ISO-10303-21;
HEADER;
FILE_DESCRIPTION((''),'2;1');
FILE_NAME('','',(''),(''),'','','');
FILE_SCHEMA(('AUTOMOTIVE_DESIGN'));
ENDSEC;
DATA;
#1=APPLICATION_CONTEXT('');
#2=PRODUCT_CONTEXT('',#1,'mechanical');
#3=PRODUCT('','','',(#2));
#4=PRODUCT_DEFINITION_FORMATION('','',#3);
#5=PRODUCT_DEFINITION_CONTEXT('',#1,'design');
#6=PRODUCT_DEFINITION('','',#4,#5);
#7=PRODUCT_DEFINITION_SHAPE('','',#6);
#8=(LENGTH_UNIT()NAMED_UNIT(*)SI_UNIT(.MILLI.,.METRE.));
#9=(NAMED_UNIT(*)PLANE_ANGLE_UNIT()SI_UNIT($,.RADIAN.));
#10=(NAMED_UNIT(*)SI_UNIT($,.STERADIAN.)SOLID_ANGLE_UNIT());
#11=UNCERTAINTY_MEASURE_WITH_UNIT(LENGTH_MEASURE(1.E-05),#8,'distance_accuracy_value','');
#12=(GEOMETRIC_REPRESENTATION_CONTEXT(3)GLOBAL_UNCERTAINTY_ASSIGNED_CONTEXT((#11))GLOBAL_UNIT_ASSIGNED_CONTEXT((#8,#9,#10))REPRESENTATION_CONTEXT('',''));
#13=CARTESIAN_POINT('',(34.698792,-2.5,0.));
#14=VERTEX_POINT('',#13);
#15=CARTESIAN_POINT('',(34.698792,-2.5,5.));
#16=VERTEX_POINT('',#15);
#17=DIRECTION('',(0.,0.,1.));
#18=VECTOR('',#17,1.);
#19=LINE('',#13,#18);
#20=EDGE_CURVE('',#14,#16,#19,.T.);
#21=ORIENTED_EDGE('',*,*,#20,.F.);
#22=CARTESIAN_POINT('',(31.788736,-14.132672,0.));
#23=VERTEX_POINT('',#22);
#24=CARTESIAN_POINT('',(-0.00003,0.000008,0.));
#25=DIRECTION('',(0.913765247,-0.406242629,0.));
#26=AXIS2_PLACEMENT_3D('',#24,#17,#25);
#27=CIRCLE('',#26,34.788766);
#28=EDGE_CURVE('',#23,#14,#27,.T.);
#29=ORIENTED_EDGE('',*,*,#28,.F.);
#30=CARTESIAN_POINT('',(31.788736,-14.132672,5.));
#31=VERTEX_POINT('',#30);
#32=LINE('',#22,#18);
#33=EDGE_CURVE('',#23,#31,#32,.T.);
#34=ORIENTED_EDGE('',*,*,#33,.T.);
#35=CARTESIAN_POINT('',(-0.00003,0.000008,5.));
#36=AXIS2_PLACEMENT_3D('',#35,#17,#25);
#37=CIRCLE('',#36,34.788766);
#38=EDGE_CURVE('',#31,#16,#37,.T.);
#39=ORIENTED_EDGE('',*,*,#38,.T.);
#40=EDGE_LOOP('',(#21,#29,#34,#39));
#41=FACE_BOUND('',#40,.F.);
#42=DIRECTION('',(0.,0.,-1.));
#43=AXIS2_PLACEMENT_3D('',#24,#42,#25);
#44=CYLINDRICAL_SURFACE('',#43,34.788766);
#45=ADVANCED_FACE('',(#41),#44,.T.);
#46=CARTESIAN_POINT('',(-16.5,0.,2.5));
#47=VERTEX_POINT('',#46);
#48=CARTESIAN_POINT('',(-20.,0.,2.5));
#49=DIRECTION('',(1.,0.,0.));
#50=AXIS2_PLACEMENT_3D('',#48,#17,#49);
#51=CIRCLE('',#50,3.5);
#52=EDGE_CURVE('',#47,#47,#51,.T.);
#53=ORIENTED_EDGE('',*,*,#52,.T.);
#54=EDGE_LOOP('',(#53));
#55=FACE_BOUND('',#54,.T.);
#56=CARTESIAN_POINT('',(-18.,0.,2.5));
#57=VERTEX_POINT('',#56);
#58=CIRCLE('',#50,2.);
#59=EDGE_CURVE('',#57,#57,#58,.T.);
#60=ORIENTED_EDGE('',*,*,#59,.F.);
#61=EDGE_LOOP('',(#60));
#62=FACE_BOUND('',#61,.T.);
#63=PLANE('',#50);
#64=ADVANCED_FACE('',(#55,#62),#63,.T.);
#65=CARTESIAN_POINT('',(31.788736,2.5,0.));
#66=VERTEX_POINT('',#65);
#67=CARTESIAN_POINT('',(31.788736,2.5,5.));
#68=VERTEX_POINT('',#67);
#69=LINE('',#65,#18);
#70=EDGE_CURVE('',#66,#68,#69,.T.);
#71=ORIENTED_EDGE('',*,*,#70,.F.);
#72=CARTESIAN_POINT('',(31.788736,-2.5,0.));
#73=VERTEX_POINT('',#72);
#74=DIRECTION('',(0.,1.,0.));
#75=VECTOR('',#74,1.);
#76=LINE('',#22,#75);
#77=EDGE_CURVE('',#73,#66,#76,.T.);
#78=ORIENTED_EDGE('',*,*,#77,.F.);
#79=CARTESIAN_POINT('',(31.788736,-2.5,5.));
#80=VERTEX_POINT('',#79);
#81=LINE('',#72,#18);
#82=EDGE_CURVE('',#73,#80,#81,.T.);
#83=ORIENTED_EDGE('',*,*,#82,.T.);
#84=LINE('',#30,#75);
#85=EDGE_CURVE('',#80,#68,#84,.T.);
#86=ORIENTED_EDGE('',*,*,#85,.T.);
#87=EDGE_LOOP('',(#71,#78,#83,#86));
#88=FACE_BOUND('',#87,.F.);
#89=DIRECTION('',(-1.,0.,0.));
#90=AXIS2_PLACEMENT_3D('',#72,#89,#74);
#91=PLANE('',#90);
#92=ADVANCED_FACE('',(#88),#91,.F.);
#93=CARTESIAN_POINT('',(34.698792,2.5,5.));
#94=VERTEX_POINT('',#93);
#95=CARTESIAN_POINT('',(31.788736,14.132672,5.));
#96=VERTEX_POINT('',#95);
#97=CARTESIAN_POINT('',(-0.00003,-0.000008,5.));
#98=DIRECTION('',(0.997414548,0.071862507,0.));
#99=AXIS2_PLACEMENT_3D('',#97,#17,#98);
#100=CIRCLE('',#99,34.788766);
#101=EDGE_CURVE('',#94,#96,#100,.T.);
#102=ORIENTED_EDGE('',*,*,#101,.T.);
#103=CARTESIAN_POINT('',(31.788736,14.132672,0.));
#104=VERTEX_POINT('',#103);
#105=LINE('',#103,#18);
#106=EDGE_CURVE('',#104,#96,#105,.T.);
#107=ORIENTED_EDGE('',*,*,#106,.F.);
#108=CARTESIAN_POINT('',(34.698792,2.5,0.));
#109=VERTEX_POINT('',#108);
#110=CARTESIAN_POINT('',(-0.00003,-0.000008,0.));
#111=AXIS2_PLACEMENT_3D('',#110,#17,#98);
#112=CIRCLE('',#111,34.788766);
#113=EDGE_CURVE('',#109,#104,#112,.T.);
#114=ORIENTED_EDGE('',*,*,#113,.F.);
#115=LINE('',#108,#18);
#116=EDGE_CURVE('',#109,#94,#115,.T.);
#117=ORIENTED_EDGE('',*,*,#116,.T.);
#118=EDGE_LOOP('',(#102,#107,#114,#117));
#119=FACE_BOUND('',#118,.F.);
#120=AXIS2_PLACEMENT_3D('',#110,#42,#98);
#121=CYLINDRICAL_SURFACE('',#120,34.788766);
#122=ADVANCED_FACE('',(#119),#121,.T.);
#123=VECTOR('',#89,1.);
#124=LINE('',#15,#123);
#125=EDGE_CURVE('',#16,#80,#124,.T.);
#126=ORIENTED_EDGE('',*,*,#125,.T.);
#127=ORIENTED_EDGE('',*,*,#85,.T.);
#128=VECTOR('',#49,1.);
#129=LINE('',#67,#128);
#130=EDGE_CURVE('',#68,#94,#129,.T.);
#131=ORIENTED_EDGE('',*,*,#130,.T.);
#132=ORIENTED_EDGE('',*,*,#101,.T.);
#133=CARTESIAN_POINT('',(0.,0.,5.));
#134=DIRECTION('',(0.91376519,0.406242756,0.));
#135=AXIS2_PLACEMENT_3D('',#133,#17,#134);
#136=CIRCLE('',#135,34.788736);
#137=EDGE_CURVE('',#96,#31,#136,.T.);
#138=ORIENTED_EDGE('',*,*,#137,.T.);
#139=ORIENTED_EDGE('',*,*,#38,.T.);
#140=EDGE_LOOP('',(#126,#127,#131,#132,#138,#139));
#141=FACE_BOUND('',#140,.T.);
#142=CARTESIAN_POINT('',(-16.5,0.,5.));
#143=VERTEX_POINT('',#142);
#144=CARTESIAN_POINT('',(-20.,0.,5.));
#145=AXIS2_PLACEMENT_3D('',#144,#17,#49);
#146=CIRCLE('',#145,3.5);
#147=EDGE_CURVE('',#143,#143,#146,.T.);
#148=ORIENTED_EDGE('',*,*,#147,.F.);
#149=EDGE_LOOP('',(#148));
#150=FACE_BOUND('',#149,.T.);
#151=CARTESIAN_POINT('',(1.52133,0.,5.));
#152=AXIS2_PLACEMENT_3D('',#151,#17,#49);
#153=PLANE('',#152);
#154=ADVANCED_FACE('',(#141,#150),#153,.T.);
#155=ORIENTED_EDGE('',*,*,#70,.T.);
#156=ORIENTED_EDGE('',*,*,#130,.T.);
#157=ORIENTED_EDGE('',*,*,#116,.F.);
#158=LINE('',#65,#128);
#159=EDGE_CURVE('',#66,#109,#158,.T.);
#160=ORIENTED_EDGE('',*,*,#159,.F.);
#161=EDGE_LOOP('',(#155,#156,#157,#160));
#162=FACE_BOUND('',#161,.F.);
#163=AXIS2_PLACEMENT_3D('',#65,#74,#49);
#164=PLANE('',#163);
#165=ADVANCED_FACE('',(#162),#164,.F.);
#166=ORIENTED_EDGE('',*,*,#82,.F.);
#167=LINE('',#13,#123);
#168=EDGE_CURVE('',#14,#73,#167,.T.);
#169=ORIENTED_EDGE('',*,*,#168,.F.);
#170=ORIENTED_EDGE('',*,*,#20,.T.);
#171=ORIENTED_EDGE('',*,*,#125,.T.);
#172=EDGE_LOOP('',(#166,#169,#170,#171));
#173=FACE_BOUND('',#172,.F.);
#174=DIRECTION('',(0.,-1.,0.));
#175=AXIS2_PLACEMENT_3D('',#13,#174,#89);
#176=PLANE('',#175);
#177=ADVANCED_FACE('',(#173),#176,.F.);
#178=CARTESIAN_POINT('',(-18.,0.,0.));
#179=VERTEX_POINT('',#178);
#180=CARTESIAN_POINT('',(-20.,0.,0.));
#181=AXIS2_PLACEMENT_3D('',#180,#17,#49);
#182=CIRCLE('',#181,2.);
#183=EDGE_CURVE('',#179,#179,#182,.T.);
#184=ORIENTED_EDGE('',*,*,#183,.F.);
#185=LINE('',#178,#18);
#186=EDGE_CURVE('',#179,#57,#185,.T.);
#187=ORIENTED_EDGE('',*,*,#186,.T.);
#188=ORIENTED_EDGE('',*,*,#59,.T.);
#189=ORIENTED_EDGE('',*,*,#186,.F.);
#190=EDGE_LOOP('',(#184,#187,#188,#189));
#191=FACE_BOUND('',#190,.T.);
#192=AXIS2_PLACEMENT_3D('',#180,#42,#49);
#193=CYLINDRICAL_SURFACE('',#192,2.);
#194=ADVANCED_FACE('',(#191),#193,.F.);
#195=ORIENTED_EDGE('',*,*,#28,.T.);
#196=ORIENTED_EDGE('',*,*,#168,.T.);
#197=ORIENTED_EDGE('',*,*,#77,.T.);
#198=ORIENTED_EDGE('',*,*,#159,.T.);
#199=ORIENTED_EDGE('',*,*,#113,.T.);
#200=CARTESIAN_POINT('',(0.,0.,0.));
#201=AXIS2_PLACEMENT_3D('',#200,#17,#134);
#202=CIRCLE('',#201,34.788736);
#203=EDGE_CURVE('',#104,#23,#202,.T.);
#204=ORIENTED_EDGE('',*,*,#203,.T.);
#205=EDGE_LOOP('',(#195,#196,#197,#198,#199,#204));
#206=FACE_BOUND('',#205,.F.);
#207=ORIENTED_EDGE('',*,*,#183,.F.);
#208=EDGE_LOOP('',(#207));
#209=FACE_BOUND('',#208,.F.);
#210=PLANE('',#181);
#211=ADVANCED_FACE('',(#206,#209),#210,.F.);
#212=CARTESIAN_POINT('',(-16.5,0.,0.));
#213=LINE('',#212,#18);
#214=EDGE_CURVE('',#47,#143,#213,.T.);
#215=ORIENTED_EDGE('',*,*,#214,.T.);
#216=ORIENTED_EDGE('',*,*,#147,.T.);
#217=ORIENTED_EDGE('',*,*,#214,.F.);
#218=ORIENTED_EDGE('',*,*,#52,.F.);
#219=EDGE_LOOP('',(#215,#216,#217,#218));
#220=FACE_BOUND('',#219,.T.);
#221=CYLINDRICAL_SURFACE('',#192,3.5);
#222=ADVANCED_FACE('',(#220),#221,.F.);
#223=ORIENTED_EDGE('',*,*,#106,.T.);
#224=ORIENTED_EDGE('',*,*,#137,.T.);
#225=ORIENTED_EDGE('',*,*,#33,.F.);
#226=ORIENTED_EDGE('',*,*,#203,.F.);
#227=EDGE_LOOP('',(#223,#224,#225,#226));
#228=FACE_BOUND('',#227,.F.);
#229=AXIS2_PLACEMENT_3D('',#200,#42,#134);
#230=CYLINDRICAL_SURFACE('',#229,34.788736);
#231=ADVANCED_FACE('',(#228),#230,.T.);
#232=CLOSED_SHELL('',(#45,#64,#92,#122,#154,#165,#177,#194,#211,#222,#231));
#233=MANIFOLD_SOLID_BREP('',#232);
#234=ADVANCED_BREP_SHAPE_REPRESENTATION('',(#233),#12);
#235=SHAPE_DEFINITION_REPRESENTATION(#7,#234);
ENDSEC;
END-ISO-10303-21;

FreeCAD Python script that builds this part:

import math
import FreeCAD as App
import Part
import Sketcher

V = App.Vector
Q = App.Units.Quantity

doc = App.newDocument("Part")
body = doc.addObject("PartDesign::Body", "Body")

# Sketch on XY plane
sketch1 = body.newObject("Sketcher::SketchObject", "Sketch")
sketch1.AttachmentSupport = (doc.getObject("XY_Plane"), [""])
sketch1.MapMode = "FlatFace"
sketch1.addGeometry([
    Part.ArcOfCircle(Part.Circle(V(0, 0, 0), V(0, 0, 1), 34.8), math.radians(24), math.radians(336)),  # 0
    Part.ArcOfCircle(Part.Circle(V(0, 0, 0), V(0, 0, 1), 34.8), math.radians(-23.97), math.radians(-4.12)),  # 1
    Part.LineSegment(V(34.7, -2.5, 0), V(31.8, -2.5, 0)),  # 2
    Part.LineSegment(V(31.8, -2.5, 0), V(31.8, 2.5, 0)),  # 3
    Part.LineSegment(V(31.8, 2.5, 0), V(34.7, 2.5, 0)),  # 4
    Part.ArcOfCircle(Part.Circle(V(0, 0, 0), V(0, 0, 1), 34.8), math.radians(4.12), math.radians(23.97)),  # 5
    Part.Circle(V(-20, 0, 0), V(0, 0, 1), 3.5),  # 6
], False)
sketch1.addConstraint([
    Sketcher.Constraint("Tangent", 0, 2, 1, 1),
    Sketcher.Constraint("Coincident", 1, 2, 2, 1),
    Sketcher.Constraint("Coincident", 2, 2, 3, 1),
    Sketcher.Constraint("Coincident", 3, 2, 4, 1),
    Sketcher.Constraint("Coincident", 4, 2, 5, 1),
    Sketcher.Constraint("Tangent", 5, 2, 0, 1),
    Sketcher.Constraint("Horizontal", 2),
    Sketcher.Constraint("Vertical", 3),
    Sketcher.Constraint("Horizontal", 4),
    Sketcher.Constraint("Coincident", 0, 3, -1, 1),
    Sketcher.Constraint("Equal", 1, 5),
    Sketcher.Constraint("PointOnObject", 6, 3, -1),
    Sketcher.Constraint("Vertical", 0, 2, 2, 2),
    Sketcher.Constraint("Vertical", 1, 2, 4, 2),
    Sketcher.Constraint("Vertical", 3, 2, 5, 2),
    Sketcher.Constraint("Diameter", 6, Q("7 mm")),
    Sketcher.Constraint("DistanceY", 3, 1, 3, 2, Q("5 mm")),
    Sketcher.Constraint("DistanceX", 6, 3, -1, 1, Q("20 mm")),
    Sketcher.Constraint("Radius", 0, Q("34.788736 mm")),
    Sketcher.Constraint("Radius", 1, Q("34.788766 mm")),
    Sketcher.Constraint("DistanceX", 2, 2, 2, 1, Q("2.910056 mm")),
])
pad1 = body.newObject("PartDesign::Pad", "Pad")
pad1.Profile = sketch1
pad1.Length = 5

# Sketch on XY plane
sketch2 = body.newObject("Sketcher::SketchObject", "Sketch001")
sketch2.AttachmentSupport = (doc.getObject("XY_Plane"), [""])
sketch2.MapMode = "FlatFace"
sketch2.addGeometry([
    Part.Circle(V(-20, 0, 0), V(0, 0, 1), 3.5),
    Part.Circle(V(-20, 0, 0), V(0, 0, 1), 2),
], False)
sketch2.addConstraint([
    Sketcher.Constraint("Coincident", 1, 3, 0, 3),
    Sketcher.Constraint("PointOnObject", 0, 3, -1),
    Sketcher.Constraint("Diameter", 0, Q("7 mm")),
    Sketcher.Constraint("Diameter", 1, Q("4 mm")),
    Sketcher.Constraint("DistanceX", 0, 3, -1, 1, Q("20 mm")),
])
pad2 = body.newObject("PartDesign::Pad", "Pad001")
pad2.Profile = sketch2
pad2.Length = 2.5

doc.recompute()
